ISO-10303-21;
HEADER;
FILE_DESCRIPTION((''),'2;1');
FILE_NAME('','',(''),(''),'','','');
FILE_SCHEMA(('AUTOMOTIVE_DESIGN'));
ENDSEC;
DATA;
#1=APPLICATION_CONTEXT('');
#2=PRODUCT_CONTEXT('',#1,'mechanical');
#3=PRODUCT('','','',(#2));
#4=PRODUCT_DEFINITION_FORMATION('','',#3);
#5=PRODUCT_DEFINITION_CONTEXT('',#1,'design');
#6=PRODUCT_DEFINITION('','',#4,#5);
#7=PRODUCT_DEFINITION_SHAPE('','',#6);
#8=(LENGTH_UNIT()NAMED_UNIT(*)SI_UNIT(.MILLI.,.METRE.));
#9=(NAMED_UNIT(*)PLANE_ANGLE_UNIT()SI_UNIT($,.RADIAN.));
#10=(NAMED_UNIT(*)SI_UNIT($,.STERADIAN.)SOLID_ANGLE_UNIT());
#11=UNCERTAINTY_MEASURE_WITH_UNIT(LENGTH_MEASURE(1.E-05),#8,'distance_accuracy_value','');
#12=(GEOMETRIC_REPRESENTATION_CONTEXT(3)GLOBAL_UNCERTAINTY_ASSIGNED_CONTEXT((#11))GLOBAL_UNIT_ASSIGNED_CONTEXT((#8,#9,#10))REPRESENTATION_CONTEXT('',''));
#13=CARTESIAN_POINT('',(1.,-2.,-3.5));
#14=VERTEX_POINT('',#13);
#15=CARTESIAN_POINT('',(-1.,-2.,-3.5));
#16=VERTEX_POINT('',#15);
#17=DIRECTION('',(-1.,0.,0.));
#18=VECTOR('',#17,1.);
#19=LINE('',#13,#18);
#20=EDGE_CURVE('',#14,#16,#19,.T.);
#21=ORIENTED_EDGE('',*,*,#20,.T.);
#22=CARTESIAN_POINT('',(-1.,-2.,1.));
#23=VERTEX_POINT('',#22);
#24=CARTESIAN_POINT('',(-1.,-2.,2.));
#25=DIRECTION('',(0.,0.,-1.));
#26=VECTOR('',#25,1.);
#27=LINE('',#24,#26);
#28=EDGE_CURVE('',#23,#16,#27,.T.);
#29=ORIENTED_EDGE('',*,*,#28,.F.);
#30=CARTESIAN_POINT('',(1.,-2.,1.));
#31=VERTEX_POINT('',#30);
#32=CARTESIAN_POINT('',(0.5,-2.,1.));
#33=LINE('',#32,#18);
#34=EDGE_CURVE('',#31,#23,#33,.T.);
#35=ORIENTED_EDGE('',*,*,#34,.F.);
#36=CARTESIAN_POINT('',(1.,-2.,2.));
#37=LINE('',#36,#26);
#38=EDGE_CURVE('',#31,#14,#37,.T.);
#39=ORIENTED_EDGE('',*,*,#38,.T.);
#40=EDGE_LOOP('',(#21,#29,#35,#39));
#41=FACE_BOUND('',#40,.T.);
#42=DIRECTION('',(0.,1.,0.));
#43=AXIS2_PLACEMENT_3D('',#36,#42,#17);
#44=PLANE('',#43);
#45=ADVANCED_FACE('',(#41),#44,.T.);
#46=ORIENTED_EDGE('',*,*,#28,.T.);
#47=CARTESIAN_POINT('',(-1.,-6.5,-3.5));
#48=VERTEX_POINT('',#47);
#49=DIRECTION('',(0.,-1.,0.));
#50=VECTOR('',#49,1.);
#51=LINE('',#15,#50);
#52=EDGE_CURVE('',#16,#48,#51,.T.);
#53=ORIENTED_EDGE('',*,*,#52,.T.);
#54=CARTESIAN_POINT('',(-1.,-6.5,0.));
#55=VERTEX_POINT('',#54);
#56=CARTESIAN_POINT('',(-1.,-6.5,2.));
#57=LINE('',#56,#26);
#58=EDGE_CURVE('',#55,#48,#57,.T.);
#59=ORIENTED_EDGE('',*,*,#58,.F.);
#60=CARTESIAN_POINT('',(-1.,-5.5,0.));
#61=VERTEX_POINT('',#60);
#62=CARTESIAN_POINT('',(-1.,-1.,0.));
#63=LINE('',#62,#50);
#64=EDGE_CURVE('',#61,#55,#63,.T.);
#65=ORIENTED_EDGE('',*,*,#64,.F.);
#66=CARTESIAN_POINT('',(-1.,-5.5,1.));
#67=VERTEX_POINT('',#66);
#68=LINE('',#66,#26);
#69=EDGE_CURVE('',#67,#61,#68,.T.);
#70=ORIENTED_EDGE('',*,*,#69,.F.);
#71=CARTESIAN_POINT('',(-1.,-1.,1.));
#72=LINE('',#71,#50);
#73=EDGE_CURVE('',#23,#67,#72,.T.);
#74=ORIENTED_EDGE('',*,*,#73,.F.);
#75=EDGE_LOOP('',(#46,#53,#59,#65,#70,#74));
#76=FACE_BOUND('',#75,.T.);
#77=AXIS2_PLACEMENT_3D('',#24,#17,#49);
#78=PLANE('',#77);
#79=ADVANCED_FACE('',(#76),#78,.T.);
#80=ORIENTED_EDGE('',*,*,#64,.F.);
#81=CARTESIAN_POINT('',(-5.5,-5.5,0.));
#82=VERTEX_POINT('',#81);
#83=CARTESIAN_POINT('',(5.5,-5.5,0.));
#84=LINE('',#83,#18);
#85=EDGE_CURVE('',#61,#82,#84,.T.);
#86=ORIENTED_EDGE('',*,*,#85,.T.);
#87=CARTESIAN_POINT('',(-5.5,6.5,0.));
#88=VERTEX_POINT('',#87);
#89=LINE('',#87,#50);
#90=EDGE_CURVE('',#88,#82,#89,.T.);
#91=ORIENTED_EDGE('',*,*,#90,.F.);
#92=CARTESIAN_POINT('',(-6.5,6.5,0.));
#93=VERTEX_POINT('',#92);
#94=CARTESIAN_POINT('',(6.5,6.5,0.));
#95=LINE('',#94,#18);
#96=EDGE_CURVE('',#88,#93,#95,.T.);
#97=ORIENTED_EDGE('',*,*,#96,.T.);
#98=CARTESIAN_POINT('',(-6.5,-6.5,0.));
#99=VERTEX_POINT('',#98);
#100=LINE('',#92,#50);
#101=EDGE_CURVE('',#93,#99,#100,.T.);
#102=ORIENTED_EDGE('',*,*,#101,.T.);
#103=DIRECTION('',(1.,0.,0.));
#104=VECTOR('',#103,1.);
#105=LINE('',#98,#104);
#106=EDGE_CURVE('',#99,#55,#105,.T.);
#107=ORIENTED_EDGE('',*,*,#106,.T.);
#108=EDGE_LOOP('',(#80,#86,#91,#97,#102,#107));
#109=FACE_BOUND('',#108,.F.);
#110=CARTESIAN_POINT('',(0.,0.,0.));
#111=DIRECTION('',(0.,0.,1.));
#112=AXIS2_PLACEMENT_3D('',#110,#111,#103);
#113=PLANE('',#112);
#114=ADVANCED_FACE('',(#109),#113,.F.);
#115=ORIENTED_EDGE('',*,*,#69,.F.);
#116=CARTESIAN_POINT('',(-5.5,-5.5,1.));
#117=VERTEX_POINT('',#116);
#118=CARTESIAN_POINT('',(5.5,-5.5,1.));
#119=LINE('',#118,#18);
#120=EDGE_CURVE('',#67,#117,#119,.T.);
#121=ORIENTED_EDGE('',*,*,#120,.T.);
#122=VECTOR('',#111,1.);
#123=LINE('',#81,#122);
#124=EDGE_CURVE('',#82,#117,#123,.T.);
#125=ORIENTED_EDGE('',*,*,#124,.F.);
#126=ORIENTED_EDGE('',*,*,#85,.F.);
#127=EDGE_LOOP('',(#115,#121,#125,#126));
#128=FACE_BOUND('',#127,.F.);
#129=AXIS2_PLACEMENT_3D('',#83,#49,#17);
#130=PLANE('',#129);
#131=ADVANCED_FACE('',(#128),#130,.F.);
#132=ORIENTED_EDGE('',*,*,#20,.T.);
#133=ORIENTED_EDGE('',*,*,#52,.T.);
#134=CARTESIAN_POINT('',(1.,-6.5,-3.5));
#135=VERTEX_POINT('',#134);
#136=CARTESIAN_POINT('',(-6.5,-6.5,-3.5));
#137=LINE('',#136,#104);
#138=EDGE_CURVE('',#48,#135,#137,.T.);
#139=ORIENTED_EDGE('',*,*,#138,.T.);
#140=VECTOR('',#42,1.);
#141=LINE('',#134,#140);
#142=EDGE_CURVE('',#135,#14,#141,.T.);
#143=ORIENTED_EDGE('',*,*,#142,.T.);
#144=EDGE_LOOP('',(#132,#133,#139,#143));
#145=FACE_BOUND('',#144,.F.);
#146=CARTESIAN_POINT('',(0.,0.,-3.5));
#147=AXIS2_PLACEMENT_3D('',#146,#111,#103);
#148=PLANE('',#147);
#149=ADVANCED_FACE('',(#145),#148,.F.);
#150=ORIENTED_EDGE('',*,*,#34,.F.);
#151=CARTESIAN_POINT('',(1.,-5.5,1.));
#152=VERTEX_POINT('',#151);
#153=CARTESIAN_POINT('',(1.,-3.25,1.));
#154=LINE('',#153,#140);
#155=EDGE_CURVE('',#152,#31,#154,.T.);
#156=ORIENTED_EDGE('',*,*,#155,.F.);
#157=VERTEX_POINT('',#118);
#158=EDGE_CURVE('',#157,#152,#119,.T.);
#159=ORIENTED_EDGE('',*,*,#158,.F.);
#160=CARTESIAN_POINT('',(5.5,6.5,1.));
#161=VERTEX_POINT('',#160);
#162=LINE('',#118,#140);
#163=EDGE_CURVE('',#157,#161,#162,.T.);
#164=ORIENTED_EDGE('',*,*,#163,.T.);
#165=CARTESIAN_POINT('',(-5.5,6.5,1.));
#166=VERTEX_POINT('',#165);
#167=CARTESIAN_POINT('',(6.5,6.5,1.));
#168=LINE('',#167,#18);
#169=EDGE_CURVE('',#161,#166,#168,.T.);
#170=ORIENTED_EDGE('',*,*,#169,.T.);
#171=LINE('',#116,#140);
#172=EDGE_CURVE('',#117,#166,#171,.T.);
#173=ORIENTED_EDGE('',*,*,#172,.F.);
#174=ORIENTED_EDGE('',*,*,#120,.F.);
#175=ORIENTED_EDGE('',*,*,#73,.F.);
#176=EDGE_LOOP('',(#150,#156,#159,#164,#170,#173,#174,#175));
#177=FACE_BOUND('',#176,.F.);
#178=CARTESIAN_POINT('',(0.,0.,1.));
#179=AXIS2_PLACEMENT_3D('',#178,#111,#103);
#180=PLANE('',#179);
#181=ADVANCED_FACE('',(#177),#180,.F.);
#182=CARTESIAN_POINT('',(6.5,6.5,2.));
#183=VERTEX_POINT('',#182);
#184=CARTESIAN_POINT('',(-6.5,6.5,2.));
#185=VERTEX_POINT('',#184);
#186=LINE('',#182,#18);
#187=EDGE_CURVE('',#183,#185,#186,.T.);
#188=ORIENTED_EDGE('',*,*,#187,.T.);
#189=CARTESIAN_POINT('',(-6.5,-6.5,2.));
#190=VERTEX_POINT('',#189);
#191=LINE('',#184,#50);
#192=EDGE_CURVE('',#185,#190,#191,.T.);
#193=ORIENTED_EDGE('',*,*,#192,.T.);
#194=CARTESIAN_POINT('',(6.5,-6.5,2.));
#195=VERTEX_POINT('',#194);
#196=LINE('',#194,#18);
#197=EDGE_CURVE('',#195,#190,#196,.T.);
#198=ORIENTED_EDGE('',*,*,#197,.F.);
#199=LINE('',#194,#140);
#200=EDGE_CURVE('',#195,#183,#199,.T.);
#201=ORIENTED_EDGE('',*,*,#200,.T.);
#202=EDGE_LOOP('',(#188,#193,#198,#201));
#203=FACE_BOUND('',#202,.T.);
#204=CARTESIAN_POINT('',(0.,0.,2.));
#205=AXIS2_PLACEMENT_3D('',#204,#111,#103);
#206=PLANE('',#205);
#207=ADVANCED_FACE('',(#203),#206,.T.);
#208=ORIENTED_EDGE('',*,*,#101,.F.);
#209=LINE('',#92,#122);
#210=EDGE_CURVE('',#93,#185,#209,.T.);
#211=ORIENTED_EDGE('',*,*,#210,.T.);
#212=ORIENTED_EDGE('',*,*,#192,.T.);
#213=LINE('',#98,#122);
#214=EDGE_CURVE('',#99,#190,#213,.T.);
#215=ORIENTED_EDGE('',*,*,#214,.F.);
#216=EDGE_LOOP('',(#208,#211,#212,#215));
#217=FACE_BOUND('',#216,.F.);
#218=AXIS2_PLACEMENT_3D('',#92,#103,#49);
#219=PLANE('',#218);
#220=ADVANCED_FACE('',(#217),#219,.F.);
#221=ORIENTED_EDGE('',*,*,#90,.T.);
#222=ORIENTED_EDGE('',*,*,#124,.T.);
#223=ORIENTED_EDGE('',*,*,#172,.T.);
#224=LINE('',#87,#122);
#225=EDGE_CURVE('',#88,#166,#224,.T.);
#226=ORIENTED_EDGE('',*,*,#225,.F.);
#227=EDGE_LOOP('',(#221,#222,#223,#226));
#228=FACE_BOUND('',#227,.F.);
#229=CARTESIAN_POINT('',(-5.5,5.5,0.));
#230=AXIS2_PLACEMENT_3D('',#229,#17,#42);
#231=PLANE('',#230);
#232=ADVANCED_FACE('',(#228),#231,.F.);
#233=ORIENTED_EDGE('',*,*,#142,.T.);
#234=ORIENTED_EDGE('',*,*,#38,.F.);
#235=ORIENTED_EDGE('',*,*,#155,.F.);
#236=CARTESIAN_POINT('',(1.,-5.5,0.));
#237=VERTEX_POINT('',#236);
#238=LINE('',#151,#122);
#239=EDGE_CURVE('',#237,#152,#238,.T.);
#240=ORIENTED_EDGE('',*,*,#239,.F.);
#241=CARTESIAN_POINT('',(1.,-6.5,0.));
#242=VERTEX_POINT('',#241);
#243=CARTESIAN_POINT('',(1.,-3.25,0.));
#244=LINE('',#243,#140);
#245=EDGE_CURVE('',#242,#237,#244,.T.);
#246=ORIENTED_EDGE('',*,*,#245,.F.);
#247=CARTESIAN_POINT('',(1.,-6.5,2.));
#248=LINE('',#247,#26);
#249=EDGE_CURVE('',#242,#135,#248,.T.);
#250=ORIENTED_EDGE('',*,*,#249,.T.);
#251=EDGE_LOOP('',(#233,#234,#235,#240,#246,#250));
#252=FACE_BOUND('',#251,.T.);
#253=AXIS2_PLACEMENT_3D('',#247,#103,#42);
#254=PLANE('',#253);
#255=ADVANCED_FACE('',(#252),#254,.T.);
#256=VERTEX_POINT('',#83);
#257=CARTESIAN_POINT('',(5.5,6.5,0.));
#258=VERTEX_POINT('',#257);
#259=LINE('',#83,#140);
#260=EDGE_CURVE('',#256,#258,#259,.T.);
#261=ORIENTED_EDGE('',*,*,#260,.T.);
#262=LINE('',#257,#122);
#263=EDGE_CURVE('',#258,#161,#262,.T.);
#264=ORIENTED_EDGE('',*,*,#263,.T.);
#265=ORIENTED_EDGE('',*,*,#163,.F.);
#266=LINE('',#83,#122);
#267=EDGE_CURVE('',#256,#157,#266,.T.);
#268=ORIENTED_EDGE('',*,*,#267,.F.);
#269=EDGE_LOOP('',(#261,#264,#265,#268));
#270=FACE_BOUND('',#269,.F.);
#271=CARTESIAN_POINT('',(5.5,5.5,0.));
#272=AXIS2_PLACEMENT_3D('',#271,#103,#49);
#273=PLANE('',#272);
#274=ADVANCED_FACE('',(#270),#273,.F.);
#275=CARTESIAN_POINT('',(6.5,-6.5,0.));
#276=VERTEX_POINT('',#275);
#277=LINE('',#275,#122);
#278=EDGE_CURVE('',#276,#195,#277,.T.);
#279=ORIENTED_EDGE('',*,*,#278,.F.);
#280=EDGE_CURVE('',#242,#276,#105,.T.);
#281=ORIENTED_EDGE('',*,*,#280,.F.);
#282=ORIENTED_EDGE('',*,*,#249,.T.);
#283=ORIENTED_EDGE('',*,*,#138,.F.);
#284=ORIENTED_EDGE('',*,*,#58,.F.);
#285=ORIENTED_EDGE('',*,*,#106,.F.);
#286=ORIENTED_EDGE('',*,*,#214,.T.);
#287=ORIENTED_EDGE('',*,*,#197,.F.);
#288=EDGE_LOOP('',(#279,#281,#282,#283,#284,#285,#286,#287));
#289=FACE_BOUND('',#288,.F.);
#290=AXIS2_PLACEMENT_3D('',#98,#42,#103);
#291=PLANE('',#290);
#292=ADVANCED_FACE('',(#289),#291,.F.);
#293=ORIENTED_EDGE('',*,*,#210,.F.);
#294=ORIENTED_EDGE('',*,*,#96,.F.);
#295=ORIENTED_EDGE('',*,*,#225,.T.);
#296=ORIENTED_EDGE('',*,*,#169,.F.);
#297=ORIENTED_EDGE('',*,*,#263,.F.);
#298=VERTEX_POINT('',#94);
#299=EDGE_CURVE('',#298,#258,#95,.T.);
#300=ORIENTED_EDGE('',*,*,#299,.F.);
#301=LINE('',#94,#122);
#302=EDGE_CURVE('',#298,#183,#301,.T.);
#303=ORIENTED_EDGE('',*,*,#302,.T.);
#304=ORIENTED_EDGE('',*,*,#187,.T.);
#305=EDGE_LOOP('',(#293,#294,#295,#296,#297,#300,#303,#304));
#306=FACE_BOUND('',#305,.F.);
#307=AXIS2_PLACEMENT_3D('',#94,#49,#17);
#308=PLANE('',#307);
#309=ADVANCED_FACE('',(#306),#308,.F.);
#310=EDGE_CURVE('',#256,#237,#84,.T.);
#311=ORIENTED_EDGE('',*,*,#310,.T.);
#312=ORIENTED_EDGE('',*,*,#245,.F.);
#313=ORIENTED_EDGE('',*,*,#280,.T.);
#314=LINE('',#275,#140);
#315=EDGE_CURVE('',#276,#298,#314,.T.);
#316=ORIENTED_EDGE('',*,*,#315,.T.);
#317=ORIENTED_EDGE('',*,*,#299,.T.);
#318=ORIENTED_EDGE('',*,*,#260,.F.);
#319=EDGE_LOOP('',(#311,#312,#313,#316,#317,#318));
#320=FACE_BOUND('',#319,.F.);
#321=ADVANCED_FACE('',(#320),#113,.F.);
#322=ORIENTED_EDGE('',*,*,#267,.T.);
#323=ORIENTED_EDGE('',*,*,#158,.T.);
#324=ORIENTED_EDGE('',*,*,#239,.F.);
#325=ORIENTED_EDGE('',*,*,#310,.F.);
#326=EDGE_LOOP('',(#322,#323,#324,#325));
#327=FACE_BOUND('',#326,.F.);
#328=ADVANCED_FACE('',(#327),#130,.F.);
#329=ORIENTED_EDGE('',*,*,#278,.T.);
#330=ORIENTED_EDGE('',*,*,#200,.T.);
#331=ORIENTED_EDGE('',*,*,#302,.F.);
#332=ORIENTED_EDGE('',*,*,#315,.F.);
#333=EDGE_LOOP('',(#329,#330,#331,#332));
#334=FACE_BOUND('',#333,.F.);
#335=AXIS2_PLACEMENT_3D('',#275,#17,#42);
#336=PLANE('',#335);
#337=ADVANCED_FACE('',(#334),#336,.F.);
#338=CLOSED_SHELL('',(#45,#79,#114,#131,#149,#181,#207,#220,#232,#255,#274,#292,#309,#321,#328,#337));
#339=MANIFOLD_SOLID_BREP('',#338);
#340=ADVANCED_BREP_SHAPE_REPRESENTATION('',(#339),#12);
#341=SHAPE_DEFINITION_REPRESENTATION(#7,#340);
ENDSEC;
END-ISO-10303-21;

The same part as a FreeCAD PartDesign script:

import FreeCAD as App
import Part
import Sketcher
from FreeCAD import Vector


def add_polygon(sketch, points):
    """Adds a closed chain of lines whose ends are joined by coincident constraints."""
    first, n = sketch.GeometryCount, len(points)
    for a, b in zip(points, points[1:] + points[:1]):
        sketch.addGeometry(Part.LineSegment(App.Vector(*a, 0), App.Vector(*b, 0)), False)
    for i in range(n):
        sketch.addConstraint(Sketcher.Constraint("Coincident", first + i, 2, first + (i + 1) % n, 1))

doc = App.newDocument("Part")
params = doc.addObject("Spreadsheet::Sheet", "Params")
for row, (alias, value) in enumerate([
    ("sketch1_width", "13 mm"),
    ("pad1_length", "2 mm"),
    ("sketch2_width", "11 mm"),
    ("pocket1_length", "1 mm"),
    ("sketch3_width", "2 mm"),
    ("sketch3_height", "4.5 mm"),
    ("pad2_length", "5.5 mm"),
    ("sketch4_width", "11 mm"),
    ("sketch4_height", "1 mm"),
    ("pocket2_length", "1 mm"),
], start=1):
    params.set(f"A{row}", alias)
    params.set(f"B{row}", "=" + value)
    params.setAlias(f"B{row}", alias)

body = doc.addObject("PartDesign::Body", "Body")

# Sketch on XY plane
sketch1 = body.newObject("Sketcher::SketchObject", "Sketch")
sketch1.AttachmentSupport = (doc.getObject("XY_Plane"), [""])
sketch1.MapMode = "FlatFace"
add_polygon(sketch1, [(-6, 6), (-6, -6), (6, -6), (6, 6)])  # lines 0-3
sketch1.addConstraint([
    Sketcher.Constraint("Vertical", 0),
    Sketcher.Constraint("Horizontal", 1),
    Sketcher.Constraint("Vertical", 2),
    Sketcher.Constraint("Horizontal", 3),
    Sketcher.Constraint("Symmetric", 0, 2, 2, 2, -1, 1),
    Sketcher.Constraint("Equal", 3, 0),
    Sketcher.Constraint("DistanceX", 1, 1, 1, 2, 13.0),
])
sketch1.setExpression("Constraints[10]", "Params.sketch1_width")
pad1 = body.newObject("PartDesign::Pad", "Pad")
pad1.Profile = sketch1
pad1.setExpression("Length", "Params.pad1_length")

# Sketch on XY plane
sketch2 = body.newObject("Sketcher::SketchObject", "Sketch001")
sketch2.AttachmentSupport = (doc.getObject("XY_Plane"), [""])
sketch2.MapMode = "FlatFace"
add_polygon(sketch2, [(6, 6), (-6, 6), (-6, -6), (6, -6)])  # lines 0-3
sketch2.addConstraint([
    Sketcher.Constraint("Horizontal", 0),
    Sketcher.Constraint("Vertical", 1),
    Sketcher.Constraint("Horizontal", 2),
    Sketcher.Constraint("Vertical", 3),
    Sketcher.Constraint("Symmetric", 0, 2, 2, 2, -1, 1),
    Sketcher.Constraint("Equal", 2, 1),
    Sketcher.Constraint("DistanceX", 0, 2, 0, 1, 11.0),
])
sketch2.setExpression("Constraints[10]", "Params.sketch2_width")
pocket1 = body.newObject("PartDesign::Pocket", "Pocket")
pocket1.Profile = sketch2
pocket1.setExpression("Length", "Params.pocket1_length")
pocket1.Reversed = True

# Sketch on XY plane
sketch3 = body.newObject("Sketcher::SketchObject", "Sketch002")
sketch3.AttachmentSupport = (doc.getObject("XY_Plane"), [""])
sketch3.MapMode = "FlatFace"
sketch3.AttachmentOffset = App.Placement(Vector(0, 0, 2), App.Rotation())
add_polygon(sketch3, [(-1, -2), (-1, -6.5), (1, -6.5), (1, -2)])  # lines 0-3
sketch3.addConstraint([
    Sketcher.Constraint("Vertical", 0),
    Sketcher.Constraint("Horizontal", 1),
    Sketcher.Constraint("Vertical", 2),
    Sketcher.Constraint("Horizontal", 3),
    Sketcher.Constraint("DistanceX", 1, 1, 1, 2, 2.0),
    Sketcher.Constraint("DistanceY", 0, 2, 0, 1, 4.5),
    Sketcher.Constraint("DistanceX", 0, 2, -1, 1, 1.0),
    Sketcher.Constraint("DistanceY", 2, 2, -1, 1, 2.0),
])
sketch3.setExpression("Constraints[8]", "Params.sketch3_width")
sketch3.setExpression("Constraints[9]", "Params.sketch3_height")
pad2 = body.newObject("PartDesign::Pad", "Pad001")
pad2.Profile = sketch3
pad2.setExpression("Length", "Params.pad2_length")
pad2.Reversed = True

# Sketch on XY plane
sketch4 = body.newObject("Sketcher::SketchObject", "Sketch003")
sketch4.AttachmentSupport = (doc.getObject("XY_Plane"), [""])
sketch4.MapMode = "FlatFace"
add_polygon(sketch4, [(5.5, 6.5), (5.5, 5.5), (-5.5, 5.5), (-5.5, 6.5)])  # lines 0-3
sketch4.addConstraint([
    Sketcher.Constraint("Vertical", 0),
    Sketcher.Constraint("Horizontal", 1),
    Sketcher.Constraint("Vertical", 2),
    Sketcher.Constraint("Horizontal", 3),
    Sketcher.Constraint("DistanceX", 1, 2, 1, 1, 11.0),
    Sketcher.Constraint("DistanceY", 0, 2, 0, 1, 1.0),
    Sketcher.Constraint("DistanceX", -1, 1, 0, 2, 5.5),
    Sketcher.Constraint("DistanceY", -1, 1, 0, 2, 5.5),
])
sketch4.setExpression("Constraints[8]", "Params.sketch4_width")
sketch4.setExpression("Constraints[9]", "Params.sketch4_height")
pocket2 = body.newObject("PartDesign::Pocket", "Pocket001")
pocket2.Profile = sketch4
pocket2.setExpression("Length", "Params.pocket2_length")
pocket2.Reversed = True

doc.recompute()
